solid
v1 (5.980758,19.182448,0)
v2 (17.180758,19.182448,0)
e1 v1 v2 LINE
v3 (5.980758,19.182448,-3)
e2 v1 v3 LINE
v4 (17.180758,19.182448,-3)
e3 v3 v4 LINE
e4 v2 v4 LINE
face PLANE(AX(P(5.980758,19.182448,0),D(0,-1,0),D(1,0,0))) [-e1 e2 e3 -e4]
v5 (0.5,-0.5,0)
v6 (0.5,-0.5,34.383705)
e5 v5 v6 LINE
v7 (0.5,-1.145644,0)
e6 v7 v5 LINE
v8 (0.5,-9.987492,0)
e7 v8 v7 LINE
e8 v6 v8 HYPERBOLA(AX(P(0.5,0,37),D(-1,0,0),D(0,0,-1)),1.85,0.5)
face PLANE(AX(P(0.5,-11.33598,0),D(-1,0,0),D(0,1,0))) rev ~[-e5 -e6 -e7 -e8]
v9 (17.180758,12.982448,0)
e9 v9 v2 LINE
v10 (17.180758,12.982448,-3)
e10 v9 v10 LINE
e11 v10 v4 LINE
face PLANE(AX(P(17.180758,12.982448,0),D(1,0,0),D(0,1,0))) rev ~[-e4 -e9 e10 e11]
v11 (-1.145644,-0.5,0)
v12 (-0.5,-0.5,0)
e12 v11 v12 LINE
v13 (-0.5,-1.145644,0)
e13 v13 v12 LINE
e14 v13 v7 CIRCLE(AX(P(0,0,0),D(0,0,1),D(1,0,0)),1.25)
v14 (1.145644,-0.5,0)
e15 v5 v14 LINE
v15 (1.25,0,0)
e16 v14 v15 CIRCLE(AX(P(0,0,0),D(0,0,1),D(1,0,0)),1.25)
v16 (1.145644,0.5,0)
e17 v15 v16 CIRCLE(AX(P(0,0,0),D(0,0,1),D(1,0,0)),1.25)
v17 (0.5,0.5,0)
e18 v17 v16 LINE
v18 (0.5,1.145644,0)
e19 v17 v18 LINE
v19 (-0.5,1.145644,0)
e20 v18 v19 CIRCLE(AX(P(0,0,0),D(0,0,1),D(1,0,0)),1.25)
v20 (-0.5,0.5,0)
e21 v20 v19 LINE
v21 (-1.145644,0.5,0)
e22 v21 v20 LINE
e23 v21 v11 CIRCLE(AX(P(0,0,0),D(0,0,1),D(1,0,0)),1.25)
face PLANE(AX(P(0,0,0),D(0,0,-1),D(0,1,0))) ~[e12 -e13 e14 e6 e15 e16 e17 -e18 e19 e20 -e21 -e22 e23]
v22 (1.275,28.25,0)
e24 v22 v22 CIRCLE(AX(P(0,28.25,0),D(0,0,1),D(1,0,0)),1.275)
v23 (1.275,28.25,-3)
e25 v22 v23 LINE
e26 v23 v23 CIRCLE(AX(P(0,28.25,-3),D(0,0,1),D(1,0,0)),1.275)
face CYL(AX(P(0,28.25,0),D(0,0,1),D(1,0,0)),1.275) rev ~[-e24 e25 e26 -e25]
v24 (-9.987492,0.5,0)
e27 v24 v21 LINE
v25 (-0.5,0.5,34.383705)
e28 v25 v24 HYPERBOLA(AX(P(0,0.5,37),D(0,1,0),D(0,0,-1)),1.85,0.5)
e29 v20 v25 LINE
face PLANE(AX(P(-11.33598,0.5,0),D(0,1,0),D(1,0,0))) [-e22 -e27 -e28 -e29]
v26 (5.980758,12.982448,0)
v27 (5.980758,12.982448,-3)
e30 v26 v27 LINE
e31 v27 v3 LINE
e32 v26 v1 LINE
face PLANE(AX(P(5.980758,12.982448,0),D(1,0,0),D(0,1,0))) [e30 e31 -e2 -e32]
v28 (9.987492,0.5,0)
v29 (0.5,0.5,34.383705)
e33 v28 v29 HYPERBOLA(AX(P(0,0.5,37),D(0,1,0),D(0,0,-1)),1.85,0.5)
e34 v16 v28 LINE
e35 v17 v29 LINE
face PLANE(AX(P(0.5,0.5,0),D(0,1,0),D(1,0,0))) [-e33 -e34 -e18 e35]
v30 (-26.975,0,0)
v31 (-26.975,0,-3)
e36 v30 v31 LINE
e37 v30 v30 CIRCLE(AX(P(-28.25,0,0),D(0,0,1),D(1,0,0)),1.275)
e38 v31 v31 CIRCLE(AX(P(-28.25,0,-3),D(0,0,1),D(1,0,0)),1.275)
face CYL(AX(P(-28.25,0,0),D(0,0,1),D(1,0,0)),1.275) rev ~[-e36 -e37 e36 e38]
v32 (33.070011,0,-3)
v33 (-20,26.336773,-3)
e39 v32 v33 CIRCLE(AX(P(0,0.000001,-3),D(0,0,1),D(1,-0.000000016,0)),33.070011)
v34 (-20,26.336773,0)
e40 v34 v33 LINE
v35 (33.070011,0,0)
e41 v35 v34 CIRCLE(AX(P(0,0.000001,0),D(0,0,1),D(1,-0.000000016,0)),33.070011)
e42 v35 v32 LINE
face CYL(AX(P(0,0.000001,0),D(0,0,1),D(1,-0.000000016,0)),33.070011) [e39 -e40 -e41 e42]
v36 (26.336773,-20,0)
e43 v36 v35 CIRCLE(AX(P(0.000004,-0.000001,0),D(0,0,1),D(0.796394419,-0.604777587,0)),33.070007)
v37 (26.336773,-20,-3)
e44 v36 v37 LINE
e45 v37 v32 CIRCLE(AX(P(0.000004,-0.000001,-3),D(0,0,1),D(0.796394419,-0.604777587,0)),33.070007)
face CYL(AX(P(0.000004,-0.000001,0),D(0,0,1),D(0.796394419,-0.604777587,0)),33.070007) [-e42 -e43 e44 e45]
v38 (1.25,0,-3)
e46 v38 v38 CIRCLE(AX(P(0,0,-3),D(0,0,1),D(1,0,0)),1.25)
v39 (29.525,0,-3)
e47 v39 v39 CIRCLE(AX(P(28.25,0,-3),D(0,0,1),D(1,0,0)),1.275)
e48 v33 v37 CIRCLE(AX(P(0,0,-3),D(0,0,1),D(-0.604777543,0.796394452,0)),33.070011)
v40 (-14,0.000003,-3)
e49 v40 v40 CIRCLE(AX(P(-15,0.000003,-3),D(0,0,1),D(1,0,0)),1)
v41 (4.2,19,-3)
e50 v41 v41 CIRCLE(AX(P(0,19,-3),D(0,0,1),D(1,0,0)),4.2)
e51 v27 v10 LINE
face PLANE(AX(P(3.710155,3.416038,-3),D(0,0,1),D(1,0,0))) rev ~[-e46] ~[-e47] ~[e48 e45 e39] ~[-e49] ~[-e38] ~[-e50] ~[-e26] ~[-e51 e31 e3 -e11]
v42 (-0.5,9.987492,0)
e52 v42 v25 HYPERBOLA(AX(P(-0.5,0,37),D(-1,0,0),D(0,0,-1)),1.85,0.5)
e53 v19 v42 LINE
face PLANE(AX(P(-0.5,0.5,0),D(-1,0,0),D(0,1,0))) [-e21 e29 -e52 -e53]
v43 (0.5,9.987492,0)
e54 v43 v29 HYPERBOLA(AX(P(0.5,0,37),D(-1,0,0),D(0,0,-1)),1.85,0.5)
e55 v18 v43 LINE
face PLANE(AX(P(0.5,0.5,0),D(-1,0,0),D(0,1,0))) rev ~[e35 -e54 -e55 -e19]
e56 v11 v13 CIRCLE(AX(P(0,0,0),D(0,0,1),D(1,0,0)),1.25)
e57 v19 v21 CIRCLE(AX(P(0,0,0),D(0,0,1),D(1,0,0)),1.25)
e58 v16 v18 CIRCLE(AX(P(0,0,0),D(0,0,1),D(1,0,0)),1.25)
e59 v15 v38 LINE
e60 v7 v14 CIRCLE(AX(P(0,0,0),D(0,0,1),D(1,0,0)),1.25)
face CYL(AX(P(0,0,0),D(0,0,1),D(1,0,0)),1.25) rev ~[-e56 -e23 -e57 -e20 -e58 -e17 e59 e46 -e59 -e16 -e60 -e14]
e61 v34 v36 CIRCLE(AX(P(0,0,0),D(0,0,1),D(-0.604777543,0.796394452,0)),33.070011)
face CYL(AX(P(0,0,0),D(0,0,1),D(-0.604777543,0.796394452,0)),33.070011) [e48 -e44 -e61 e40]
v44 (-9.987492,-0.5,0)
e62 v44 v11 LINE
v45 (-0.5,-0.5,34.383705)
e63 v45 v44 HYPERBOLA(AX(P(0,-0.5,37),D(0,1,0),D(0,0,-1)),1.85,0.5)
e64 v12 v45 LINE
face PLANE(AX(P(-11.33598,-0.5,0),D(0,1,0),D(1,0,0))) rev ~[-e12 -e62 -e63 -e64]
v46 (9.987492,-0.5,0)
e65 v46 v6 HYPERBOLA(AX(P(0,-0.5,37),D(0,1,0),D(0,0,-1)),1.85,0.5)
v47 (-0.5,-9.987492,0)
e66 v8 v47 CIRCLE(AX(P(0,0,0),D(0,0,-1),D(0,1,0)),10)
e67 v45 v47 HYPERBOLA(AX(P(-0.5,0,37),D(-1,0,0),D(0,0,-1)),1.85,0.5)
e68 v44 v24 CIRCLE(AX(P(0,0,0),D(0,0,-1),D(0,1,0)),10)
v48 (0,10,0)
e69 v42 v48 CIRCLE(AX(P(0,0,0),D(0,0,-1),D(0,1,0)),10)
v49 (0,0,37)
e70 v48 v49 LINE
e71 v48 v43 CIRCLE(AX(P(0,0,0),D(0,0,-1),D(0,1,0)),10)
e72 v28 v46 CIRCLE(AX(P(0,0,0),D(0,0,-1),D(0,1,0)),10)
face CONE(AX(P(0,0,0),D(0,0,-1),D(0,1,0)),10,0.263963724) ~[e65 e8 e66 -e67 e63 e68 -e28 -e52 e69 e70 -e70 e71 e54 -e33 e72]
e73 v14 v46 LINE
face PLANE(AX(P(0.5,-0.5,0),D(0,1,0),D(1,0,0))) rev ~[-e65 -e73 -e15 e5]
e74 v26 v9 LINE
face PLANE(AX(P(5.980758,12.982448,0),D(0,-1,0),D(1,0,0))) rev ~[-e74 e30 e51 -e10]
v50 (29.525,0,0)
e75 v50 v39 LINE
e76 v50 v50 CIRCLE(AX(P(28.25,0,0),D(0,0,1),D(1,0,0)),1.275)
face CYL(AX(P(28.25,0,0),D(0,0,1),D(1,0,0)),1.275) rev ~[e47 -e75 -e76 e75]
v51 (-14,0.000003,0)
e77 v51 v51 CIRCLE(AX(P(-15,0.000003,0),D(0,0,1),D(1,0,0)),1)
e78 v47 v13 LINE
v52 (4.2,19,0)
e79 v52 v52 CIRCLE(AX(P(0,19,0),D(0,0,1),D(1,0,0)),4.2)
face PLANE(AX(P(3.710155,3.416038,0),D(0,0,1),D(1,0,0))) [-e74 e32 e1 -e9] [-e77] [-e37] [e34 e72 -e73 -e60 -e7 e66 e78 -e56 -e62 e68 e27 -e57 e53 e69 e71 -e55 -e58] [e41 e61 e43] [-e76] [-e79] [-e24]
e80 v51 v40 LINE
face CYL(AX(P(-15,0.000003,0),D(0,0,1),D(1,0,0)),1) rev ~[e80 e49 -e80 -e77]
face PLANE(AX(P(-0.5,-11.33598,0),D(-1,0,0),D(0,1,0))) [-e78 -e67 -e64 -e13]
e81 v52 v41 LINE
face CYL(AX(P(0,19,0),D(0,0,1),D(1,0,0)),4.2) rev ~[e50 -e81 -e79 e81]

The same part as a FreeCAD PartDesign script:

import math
import FreeCAD as App
import Part
import Sketcher

doc = App.newDocument("Part")
params = doc.addObject("Spreadsheet::Sheet", "Params")
for row, (alias, value) in enumerate([
    ("sketch1_diameter", "2 mm"),
    ("sketch1_diameter2", "2.5 mm"),
    ("sketch1_diameter3", "8.4 mm"),
    ("sketch1_diameter4", "2.55 mm"),
    ("sketch1_width", "11.2 mm"),
    ("pad1_length", "3 mm"),
    ("sketch2_width", "10 mm"),
    ("sketch2_height", "37 mm"),
    ("revolution_angle", "360 deg"),
    ("pocket1_length", "40 mm"),
], start=1):
    params.set(f"A{row}", alias)
    params.set(f"B{row}", "=" + value)
    params.setAlias(f"B{row}", alias)

body = doc.addObject("PartDesign::Body", "Body")

# Sketch on XY plane
sketch1 = doc.addObject("Sketcher::SketchObject", "Sketch")
body.addObject(sketch1)
sketch1.AttachmentSupport = (doc.XY_Plane, [""])
sketch1.MapMode = "FlatFace"
sketch1.addGeometry([
    Part.ArcOfCircle(Part.Circle(App.Vector(0, 0, 0), App.Vector(0, 0, 1), 33.1), math.radians(-37), math.radians(0)),  # 0
    Part.ArcOfCircle(Part.Circle(App.Vector(0, 0, 0), App.Vector(0, 0, 1), 33.1), math.radians(0), math.radians(127)),  # 1
    Part.ArcOfCircle(Part.Circle(App.Vector(0, 0, 0), App.Vector(0, 0, 1), 33.1), math.radians(127), math.radians(323)),  # 2
    Part.Circle(App.Vector(-28.2, 0, 0), App.Vector(0, 0, 1), 1.3),  # 3
    Part.Circle(App.Vector(-15, 0, 0), App.Vector(0, 0, 1), 1),  # 4
    Part.Circle(App.Vector(0, 0, 0), App.Vector(0, 0, 1), 1.2),  # 5
    Part.Circle(App.Vector(28.2, 0, 0), App.Vector(0, 0, 1), 1.3),  # 6
    Part.Circle(App.Vector(0, 19, 0), App.Vector(0, 0, 1), 4.2),  # 7
    Part.Circle(App.Vector(0, 28.2, 0), App.Vector(0, 0, 1), 1.3),  # 8
    Part.LineSegment(App.Vector(17.2, 13, 0), App.Vector(6, 13, 0)),  # 9
    Part.LineSegment(App.Vector(6, 13, 0), App.Vector(6, 19.2, 0)),  # 10
    Part.LineSegment(App.Vector(6, 19.2, 0), App.Vector(17.2, 19.2, 0)),  # 11
    Part.LineSegment(App.Vector(17.2, 19.2, 0), App.Vector(17.2, 13, 0)),  # 12
], False)
sketch1.addConstraint([
    Sketcher.Constraint("Tangent", 0, 2, 1, 1),
    Sketcher.Constraint("Tangent", 1, 2, 2, 1),
    Sketcher.Constraint("Tangent", 2, 2, 0, 1),
    Sketcher.Constraint("Coincident", 9, 2, 10, 1),
    Sketcher.Constraint("Coincident", 10, 2, 11, 1),
    Sketcher.Constraint("Coincident", 11, 2, 12, 1),
    Sketcher.Constraint("Coincident", 12, 2, 9, 1),
    Sketcher.Constraint("Horizontal", 9),
    Sketcher.Constraint("Vertical", 10),
    Sketcher.Constraint("Horizontal", 11),
    Sketcher.Constraint("Vertical", 12),
    Sketcher.Constraint("Coincident", 0, 3, -1, 1),
    Sketcher.Constraint("Coincident", 5, 3, -1, 1),
    Sketcher.Constraint("Equal", 3, 6),
    Sketcher.Constraint("Equal", 6, 8),
    Sketcher.Constraint("Symmetric", 3, 3, 6, 3, -1, 1),
    Sketcher.Constraint("PointOnObject", 3, 3, -1),
    Sketcher.Constraint("PointOnObject", 7, 3, -2),
    Sketcher.Constraint("PointOnObject", 8, 3, -2),
    Sketcher.Constraint("PointOnObject", 0, 2, -1),
    Sketcher.Constraint("Diameter", 4, 2.0),
    Sketcher.Constraint("Diameter", 5, 2.5),
    Sketcher.Constraint("Diameter", 7, 8.4),
    Sketcher.Constraint("Diameter", 3, 2.55),
    Sketcher.Constraint("DistanceX", 9, 2, 9, 1, 11.2),
    Sketcher.Constraint("DistanceY", 10, 1, 10, 2, 6.2),
    Sketcher.Constraint("DistanceX", 4, 3, -1, 1, 15.0),
    Sketcher.Constraint("DistanceY", -1, 1, 7, 3, 19.0),
    Sketcher.Constraint("DistanceX", 1, 2, -1, 1, 20.0),
    Sketcher.Constraint("DistanceY", 2, 2, -1, 1, 20.0),
    Sketcher.Constraint("DistanceX", 3, 3, -1, 1, 28.25),
    Sketcher.Constraint("DistanceY", -1, 1, 8, 3, 28.25),
    Sketcher.Constraint("Radius", 1, 33.070011),
    Sketcher.Constraint("DistanceY", -1, 1, 10, 2, 19.182448),
    Sketcher.Constraint("DistanceX", -1, 1, 11, 2, 17.180758),
    Sketcher.Constraint("DistanceY", 4, 3, 1, 2, 26.33677),
])
sketch1.setExpression("Constraints[20]", "Params.sketch1_diameter")
sketch1.setExpression("Constraints[21]", "Params.sketch1_diameter2")
sketch1.setExpression("Constraints[22]", "Params.sketch1_diameter3")
sketch1.setExpression("Constraints[23]", "Params.sketch1_diameter4")
sketch1.setExpression("Constraints[24]", "Params.sketch1_width")
pad1 = doc.addObject("PartDesign::Pad", "Pad")
body.addObject(pad1)
pad1.Profile = sketch1
pad1.setExpression("Length", "Params.pad1_length")
pad1.Reversed = True

# Sketch on YZ plane
sketch2 = doc.addObject("Sketcher::SketchObject", "Sketch001")
body.addObject(sketch2)
sketch2.AttachmentSupport = (doc.YZ_Plane, [""])
sketch2.MapMode = "FlatFace"
sketch2.addGeometry([
    Part.LineSegment(App.Vector(10, 0, 0), App.Vector(0, 37, 0)),
    Part.LineSegment(App.Vector(0, 37, 0), App.Vector(0, 0, 0)),
    Part.LineSegment(App.Vector(0, 0, 0), App.Vector(10, 0, 0)),
], False)
sketch2.addConstraint([
    Sketcher.Constraint("Coincident", 0, 2, 1, 1),
    Sketcher.Constraint("Coincident", 1, 2, 2, 1),
    Sketcher.Constraint("Coincident", 2, 2, 0, 1),
    Sketcher.Constraint("Vertical", 1),
    Sketcher.Constraint("Horizontal", 2),
    Sketcher.Constraint("Coincident", 1, 2, -1, 1),
    Sketcher.Constraint("DistanceX", 2, 1, 2, 2, 10.0),
    Sketcher.Constraint("DistanceY", 1, 2, 1, 1, 37.0),
])
sketch2.setExpression("Constraints[6]", "Params.sketch2_width")
sketch2.setExpression("Constraints[7]", "Params.sketch2_height")
revolution = doc.addObject("PartDesign::Revolution", "Revolution")
body.addObject(revolution)
revolution.Profile = sketch2
revolution.ReferenceAxis = (sketch2, ["V_Axis"])
revolution.setExpression("Angle", "Params.revolution_angle")

# Sketch on XY plane
sketch3 = doc.addObject("Sketcher::SketchObject", "Sketch002")
body.addObject(sketch3)
sketch3.AttachmentSupport = (doc.XY_Plane, [""])
sketch3.MapMode = "FlatFace"
sketch3.addGeometry([
    Part.LineSegment(App.Vector(-11.33598, 11.33598, 0), App.Vector(-11.33598, 0.5, 0)),  # 0
    Part.LineSegment(App.Vector(-11.33598, 0.5, 0), App.Vector(-0.5, 0.5, 0)),  # 1
    Part.LineSegment(App.Vector(-0.5, 0.5, 0), App.Vector(-0.5, 11.33598, 0)),  # 2
    Part.LineSegment(App.Vector(-0.5, 11.33598, 0), App.Vector(-11.33598, 11.33598, 0)),  # 3
    Part.LineSegment(App.Vector(0.5, 11.33598, 0), App.Vector(0.5, 0.5, 0)),  # 4
    Part.LineSegment(App.Vector(0.5, 0.5, 0), App.Vector(11.33598, 0.5, 0)),  # 5
    Part.LineSegment(App.Vector(11.33598, 0.5, 0), App.Vector(11.33598, 11.33598, 0)),  # 6
    Part.LineSegment(App.Vector(11.33598, 11.33598, 0), App.Vector(0.5, 11.33598, 0)),  # 7
    Part.LineSegment(App.Vector(0.5, -0.5, 0), App.Vector(0.5, -11.33598, 0)),  # 8
    Part.LineSegment(App.Vector(0.5, -11.33598, 0), App.Vector(11.33598, -11.33598, 0)),  # 9
    Part.LineSegment(App.Vector(11.33598, -11.33598, 0), App.Vector(11.33598, -0.5, 0)),  # 10
    Part.LineSegment(App.Vector(11.33598, -0.5, 0), App.Vector(0.5, -0.5, 0)),  # 11
    Part.LineSegment(App.Vector(-11.33598, -0.5, 0), App.Vector(-11.33598, -11.33598, 0)),  # 12
    Part.LineSegment(App.Vector(-11.33598, -11.33598, 0), App.Vector(-0.5, -11.33598, 0)),  # 13
    Part.LineSegment(App.Vector(-0.5, -11.33598, 0), App.Vector(-0.5, -0.5, 0)),  # 14
    Part.LineSegment(App.Vector(-0.5, -0.5, 0), App.Vector(-11.33598, -0.5, 0)),  # 15
], False)
sketch3.addConstraint([
    Sketcher.Constraint("Coincident", 0, 2, 1, 1),
    Sketcher.Constraint("Coincident", 1, 2, 2, 1),
    Sketcher.Constraint("Coincident", 2, 2, 3, 1),
    Sketcher.Constraint("Coincident", 3, 2, 0, 1),
    Sketcher.Constraint("Coincident", 4, 2, 5, 1),
    Sketcher.Constraint("Coincident", 5, 2, 6, 1),
    Sketcher.Constraint("Coincident", 6, 2, 7, 1),
    Sketcher.Constraint("Coincident", 7, 2, 4, 1),
    Sketcher.Constraint("Coincident", 8, 2, 9, 1),
    Sketcher.Constraint("Coincident", 9, 2, 10, 1),
    Sketcher.Constraint("Coincident", 10, 2, 11, 1),
    Sketcher.Constraint("Coincident", 11, 2, 8, 1),
    Sketcher.Constraint("Coincident", 12, 2, 13, 1),
    Sketcher.Constraint("Coincident", 13, 2, 14, 1),
    Sketcher.Constraint("Coincident", 14, 2, 15, 1),
    Sketcher.Constraint("Coincident", 15, 2, 12, 1),
    Sketcher.Constraint("Vertical", 0),
    Sketcher.Constraint("Horizontal", 1),
    Sketcher.Constraint("Vertical", 2),
    Sketcher.Constraint("Horizontal", 3),
    Sketcher.Constraint("Vertical", 4),
    Sketcher.Constraint("Horizontal", 5),
    Sketcher.Constraint("Vertical", 6),
    Sketcher.Constraint("Horizontal", 7),
    Sketcher.Constraint("Vertical", 8),
    Sketcher.Constraint("Horizontal", 9),
    Sketcher.Constraint("Vertical", 10),
    Sketcher.Constraint("Horizontal", 11),
    Sketcher.Constraint("Vertical", 12),
    Sketcher.Constraint("Horizontal", 13),
    Sketcher.Constraint("Vertical", 14),
    Sketcher.Constraint("Horizontal", 15),
    Sketcher.Constraint("Symmetric", 2, 2, 8, 2, -1, 1),
    Sketcher.Constraint("Symmetric", 0, 2, 10, 2, -1, 1),
    Sketcher.Constraint("Symmetric", 6, 2, 12, 2, -1, 1),
    Sketcher.Constraint("Symmetric", 4, 2, 14, 2, -1, 1),
    Sketcher.Constraint("Symmetric", 1, 2, 4, 2, -2),
    Sketcher.Constraint("Symmetric", 3, 2, 6, 2, -2),
    Sketcher.Constraint("Equal", 15, 0),
    Sketcher.Constraint("DistanceX", 1, 2, 4, 2, 1.0),
    Sketcher.Constraint("DistanceY", 10, 2, 5, 2, 1.0),
    Sketcher.Constraint("DistanceX", 1, 1, 1, 2, 10.83598),
])
pocket1 = doc.addObject("PartDesign::Pocket", "Pocket")
body.addObject(pocket1)
pocket1.Profile = sketch3
pocket1.setExpression("Length", "Params.pocket1_length")
pocket1.Reversed = True

doc.recompute()
